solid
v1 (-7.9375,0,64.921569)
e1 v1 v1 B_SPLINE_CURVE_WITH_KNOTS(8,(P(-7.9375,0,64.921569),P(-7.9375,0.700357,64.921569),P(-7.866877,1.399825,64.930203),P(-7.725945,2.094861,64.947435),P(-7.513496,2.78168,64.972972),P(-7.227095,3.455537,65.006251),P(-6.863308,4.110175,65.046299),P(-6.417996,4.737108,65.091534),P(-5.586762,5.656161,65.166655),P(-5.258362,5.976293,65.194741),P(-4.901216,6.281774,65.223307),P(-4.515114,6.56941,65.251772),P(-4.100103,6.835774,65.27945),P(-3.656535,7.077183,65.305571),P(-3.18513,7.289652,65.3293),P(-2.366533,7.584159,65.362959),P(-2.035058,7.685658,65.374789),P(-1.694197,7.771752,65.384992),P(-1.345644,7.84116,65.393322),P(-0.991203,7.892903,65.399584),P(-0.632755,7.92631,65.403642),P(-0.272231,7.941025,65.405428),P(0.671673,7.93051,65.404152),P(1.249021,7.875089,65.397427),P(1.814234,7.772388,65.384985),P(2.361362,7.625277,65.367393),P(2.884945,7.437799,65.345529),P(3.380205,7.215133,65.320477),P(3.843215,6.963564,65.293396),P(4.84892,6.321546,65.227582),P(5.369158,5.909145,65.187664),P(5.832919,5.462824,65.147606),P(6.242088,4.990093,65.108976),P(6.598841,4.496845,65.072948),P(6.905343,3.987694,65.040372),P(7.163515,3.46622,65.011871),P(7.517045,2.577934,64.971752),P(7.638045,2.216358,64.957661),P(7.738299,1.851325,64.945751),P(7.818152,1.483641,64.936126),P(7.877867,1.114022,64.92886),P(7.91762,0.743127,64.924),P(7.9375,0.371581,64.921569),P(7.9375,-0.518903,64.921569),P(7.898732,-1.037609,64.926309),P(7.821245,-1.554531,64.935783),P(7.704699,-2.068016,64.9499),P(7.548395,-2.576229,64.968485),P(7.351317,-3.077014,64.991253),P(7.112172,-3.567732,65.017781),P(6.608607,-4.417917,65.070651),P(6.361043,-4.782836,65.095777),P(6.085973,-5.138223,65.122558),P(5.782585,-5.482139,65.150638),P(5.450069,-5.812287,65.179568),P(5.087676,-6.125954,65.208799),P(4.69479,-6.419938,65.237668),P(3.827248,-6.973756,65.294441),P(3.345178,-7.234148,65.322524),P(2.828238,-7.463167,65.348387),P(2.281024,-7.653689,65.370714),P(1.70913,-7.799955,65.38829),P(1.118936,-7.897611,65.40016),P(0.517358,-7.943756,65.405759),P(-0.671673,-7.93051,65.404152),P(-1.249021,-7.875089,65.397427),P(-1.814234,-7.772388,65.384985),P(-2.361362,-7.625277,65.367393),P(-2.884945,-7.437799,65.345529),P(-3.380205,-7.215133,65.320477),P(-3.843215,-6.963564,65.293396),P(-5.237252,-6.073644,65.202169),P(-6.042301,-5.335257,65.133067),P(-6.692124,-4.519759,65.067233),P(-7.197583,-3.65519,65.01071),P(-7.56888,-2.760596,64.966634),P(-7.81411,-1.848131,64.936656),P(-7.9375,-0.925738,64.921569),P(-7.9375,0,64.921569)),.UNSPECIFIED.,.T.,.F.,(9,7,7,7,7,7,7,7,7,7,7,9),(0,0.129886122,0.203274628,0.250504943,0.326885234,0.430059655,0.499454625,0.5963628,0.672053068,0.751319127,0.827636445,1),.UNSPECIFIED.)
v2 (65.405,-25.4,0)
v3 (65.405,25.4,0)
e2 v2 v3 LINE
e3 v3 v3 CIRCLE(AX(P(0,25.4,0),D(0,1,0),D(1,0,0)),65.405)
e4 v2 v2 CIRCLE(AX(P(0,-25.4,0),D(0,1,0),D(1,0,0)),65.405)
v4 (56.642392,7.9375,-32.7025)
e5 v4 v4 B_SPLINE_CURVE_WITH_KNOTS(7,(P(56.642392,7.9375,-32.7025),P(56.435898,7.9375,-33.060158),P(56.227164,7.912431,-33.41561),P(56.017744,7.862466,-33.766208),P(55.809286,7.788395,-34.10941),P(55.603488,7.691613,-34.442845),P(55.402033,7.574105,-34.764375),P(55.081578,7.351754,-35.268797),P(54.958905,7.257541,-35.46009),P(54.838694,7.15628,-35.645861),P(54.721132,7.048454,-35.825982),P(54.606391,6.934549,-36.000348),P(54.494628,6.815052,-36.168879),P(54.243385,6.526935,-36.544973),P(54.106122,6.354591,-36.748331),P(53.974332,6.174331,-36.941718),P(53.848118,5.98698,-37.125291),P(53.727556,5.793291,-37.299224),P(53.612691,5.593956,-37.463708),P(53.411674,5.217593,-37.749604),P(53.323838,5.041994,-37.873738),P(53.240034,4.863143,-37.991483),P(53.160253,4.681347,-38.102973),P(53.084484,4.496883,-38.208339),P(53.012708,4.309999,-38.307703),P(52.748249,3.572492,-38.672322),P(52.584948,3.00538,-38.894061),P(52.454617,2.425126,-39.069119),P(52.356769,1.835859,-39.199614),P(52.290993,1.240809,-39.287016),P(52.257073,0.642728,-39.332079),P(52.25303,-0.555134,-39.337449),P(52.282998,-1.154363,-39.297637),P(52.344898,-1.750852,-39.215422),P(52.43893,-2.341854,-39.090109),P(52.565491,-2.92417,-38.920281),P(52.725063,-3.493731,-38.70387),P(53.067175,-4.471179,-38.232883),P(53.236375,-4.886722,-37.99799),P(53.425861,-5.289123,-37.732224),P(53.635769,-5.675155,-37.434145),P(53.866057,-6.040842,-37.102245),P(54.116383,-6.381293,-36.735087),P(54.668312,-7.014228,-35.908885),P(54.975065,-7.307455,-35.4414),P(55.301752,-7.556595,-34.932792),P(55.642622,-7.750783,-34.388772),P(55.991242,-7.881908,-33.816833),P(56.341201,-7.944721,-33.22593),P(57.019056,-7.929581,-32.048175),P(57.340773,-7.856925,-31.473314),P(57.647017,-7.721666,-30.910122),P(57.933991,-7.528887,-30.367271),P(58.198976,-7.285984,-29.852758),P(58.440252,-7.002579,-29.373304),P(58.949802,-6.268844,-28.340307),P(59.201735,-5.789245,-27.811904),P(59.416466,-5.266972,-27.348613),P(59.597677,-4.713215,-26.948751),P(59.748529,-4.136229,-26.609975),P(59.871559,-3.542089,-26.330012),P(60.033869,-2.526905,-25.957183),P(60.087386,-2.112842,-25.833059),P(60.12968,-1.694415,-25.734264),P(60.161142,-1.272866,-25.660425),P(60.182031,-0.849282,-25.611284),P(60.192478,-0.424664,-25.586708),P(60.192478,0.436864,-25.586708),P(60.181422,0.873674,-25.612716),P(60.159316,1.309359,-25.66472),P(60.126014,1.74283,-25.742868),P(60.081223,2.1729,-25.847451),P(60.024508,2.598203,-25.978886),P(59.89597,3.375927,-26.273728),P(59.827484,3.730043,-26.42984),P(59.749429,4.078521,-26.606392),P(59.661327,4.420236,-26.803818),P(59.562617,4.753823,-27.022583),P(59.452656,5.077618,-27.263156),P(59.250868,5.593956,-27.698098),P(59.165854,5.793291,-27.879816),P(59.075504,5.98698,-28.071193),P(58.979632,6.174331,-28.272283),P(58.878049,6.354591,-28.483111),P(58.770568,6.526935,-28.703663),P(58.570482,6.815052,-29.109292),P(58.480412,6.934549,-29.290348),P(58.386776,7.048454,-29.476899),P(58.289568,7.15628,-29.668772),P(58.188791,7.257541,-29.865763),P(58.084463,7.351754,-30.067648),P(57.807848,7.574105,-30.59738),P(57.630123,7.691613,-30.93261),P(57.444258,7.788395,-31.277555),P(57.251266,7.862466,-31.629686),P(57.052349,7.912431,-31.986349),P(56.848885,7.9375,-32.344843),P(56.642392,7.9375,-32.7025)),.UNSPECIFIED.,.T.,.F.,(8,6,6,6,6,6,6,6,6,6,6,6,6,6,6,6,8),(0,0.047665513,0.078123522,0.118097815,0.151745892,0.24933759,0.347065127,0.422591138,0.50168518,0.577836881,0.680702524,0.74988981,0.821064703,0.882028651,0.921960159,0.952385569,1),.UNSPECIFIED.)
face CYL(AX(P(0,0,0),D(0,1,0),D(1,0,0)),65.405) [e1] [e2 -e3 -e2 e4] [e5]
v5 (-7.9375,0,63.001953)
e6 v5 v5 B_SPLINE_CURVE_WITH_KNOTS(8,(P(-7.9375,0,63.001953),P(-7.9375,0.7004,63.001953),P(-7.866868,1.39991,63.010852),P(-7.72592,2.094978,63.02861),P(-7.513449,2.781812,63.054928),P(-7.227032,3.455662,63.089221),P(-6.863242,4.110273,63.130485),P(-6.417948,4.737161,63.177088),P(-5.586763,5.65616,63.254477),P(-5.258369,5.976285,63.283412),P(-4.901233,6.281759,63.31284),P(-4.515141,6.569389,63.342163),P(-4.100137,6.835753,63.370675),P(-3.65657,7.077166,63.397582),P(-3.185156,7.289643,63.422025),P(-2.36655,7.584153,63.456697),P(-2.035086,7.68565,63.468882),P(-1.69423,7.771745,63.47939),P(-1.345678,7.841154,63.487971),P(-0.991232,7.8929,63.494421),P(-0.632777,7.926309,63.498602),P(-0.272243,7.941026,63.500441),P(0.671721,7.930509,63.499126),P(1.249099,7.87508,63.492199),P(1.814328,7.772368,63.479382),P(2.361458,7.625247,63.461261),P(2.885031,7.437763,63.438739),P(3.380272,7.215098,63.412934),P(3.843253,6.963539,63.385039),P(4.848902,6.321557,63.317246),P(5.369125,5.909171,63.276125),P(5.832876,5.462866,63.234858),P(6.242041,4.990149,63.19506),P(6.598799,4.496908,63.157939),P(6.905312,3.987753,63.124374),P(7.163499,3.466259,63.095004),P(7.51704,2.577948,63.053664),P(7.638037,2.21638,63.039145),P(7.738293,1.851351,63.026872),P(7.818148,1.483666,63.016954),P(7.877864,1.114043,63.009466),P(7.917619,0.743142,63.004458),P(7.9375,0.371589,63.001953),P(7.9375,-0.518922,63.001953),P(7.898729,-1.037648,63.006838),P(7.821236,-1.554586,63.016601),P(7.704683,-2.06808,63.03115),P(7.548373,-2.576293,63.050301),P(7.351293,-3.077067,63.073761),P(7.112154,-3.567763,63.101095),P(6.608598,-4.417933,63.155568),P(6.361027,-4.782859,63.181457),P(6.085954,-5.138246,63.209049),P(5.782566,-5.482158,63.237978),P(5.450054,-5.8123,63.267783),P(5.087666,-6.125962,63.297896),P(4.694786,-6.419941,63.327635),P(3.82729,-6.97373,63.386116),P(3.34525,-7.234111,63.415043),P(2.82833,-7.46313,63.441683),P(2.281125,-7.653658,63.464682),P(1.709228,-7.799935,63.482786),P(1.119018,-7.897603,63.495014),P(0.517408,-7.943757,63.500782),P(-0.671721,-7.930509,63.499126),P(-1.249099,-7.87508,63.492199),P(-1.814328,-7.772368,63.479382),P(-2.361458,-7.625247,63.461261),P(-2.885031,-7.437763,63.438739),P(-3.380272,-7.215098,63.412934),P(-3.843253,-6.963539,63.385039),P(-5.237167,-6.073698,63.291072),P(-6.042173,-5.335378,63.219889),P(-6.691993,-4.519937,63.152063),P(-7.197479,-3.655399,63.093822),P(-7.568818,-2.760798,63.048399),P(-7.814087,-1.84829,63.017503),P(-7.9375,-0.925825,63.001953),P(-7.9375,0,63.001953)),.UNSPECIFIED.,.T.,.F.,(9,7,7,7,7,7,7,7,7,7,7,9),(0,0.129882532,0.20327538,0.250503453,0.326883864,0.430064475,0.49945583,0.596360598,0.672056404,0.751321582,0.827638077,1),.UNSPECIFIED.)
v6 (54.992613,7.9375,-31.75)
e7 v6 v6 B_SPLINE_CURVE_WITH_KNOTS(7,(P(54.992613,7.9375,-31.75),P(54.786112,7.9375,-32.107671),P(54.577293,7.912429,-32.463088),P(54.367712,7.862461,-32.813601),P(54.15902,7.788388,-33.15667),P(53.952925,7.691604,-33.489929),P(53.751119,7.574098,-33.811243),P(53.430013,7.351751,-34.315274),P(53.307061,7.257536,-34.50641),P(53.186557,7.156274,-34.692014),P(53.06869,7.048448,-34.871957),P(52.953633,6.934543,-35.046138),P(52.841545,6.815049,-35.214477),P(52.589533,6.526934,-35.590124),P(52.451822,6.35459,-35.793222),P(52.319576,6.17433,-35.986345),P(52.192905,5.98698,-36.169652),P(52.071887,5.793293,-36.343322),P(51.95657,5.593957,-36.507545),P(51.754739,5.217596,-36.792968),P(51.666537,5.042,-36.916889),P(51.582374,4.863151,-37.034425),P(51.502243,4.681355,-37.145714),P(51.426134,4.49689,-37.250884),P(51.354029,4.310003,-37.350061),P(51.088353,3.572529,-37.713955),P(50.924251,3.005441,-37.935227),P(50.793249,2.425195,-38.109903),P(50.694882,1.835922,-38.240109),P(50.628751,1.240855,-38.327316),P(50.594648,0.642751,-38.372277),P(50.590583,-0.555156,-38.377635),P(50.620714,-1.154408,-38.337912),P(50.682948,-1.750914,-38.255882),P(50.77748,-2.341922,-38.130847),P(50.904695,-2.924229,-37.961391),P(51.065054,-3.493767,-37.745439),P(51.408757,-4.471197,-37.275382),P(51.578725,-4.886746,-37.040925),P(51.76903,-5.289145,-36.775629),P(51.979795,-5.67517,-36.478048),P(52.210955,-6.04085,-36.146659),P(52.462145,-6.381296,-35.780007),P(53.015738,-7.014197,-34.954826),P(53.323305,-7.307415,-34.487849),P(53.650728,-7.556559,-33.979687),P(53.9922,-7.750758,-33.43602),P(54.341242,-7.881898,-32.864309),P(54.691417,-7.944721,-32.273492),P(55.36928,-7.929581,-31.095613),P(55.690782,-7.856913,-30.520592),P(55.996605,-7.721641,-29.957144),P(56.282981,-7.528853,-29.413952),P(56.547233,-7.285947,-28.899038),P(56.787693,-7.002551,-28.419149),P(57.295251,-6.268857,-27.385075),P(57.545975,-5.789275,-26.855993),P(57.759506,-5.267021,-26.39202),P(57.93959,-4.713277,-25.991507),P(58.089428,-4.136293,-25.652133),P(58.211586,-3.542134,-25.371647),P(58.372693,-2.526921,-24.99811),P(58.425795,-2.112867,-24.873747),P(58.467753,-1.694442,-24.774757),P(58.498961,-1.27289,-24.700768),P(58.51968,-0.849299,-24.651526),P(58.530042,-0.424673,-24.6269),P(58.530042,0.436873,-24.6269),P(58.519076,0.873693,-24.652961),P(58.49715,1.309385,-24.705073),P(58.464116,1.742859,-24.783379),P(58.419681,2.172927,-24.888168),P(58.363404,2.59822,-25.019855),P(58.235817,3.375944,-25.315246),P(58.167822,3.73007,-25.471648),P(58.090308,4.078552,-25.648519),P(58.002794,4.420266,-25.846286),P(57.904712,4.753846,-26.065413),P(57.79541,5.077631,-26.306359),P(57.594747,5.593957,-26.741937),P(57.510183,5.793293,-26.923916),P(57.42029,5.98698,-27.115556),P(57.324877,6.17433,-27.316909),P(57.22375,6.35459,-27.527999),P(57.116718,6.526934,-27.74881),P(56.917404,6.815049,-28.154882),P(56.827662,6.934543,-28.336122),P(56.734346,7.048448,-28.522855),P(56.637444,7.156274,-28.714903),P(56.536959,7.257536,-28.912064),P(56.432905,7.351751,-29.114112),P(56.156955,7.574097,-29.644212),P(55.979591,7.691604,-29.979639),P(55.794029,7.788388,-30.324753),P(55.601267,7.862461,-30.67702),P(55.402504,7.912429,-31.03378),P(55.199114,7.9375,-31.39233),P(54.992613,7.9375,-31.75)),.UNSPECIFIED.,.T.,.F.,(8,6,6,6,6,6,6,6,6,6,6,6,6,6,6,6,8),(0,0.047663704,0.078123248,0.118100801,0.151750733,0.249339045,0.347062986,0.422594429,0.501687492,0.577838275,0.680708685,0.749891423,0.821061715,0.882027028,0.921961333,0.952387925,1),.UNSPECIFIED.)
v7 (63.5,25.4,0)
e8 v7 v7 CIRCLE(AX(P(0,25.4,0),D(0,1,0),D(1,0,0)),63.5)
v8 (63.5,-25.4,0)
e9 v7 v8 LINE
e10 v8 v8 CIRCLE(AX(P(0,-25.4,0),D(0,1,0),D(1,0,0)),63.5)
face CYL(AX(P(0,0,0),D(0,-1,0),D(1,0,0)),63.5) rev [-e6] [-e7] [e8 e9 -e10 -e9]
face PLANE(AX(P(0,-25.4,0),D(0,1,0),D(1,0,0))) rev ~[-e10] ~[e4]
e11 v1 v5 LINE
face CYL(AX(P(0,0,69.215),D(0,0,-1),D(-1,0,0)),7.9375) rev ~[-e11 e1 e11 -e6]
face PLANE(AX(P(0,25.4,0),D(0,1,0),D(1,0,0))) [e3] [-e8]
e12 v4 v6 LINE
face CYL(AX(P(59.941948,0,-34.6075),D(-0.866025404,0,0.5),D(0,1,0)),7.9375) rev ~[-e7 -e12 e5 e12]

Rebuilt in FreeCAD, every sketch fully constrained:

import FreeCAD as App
import Part
import Sketcher
from FreeCAD import Vector
Q = App.Units.Quantity

doc = App.newDocument("Part")
body = doc.addObject("PartDesign::Body", "Body")

sketch1 = body.newObject("Sketcher::SketchObject", "Sketch")
sketch1.AttachmentSupport = (doc.getObject("XZ_Plane"), [""])
sketch1.MapMode = "FlatFace"
sketch1.addGeometry([
    Part.Circle(Vector(0, 0, 0), Vector(0, 0, 1), 65),
    Part.Circle(Vector(0, 0, 0), Vector(0, 0, 1), 64),
], False)
sketch1.addConstraint([
    Sketcher.Constraint("Coincident", 0, 3, -1, 1),
    Sketcher.Constraint("Coincident", 1, 3, -1, 1),
    Sketcher.Constraint("Diameter", 1, Q("5 in")),
    Sketcher.Constraint("Diameter", 0, Q("5.15 in")),
])
pad1 = body.newObject("PartDesign::Pad", "Pad")
pad1.Profile = sketch1
pad1.Length = Q("2 in")
pad1.Midplane = True

sketch2 = body.newObject("Sketcher::SketchObject", "Sketch001")
sketch2.Placement = App.Placement(Vector(56.642392, 0, -32.7025), App.Rotation(Vector(0, -1, 0), Vector(-0.5, 0, -0.866025404), Vector(0.866025404, 0, -0.5), "ZXY"))
sketch2.addGeometry(Part.Circle(Vector(0, 0, 0), Vector(0, 0, 1), 8), False)
sketch2.addConstraint([
    Sketcher.Constraint("Coincident", 0, 3, -1, 1),
    Sketcher.Constraint("Diameter", 0, Q("0.625 in")),
])
doc.recompute()
hole = body.newObject("PartDesign::Hole", "Hole")
hole.Profile = sketch2
hole.ThreadType = "None"
hole.Diameter = Q("0.625 in")
hole.DepthType = "Dimension"
hole.Depth = Q("0.15 in")
hole.DrillPoint = "Flat"

sketch3 = body.newObject("Sketcher::SketchObject", "Sketch002")
sketch3.AttachmentSupport = (doc.getObject("XY_Plane"), [""])
sketch3.MapMode = "FlatFace"
sketch3.AttachmentOffset = App.Placement(Vector(0, 0, 2.575 * 25.4), App.Rotation())
sketch3.addGeometry(Part.Circle(Vector(0, 0, 0), Vector(0, 0, 1), 8), False)
sketch3.addConstraint([
    Sketcher.Constraint("Coincident", 0, 3, -1, 1),
    Sketcher.Constraint("Diameter", 0, Q("0.625 in")),
])
doc.recompute()
hole2 = body.newObject("PartDesign::Hole", "Hole001")
hole2.Profile = sketch3
hole2.ThreadType = "None"
hole2.Diameter = Q("0.625 in")
hole2.DepthType = "Dimension"
hole2.Depth = Q("0.15 in")
hole2.DrillPoint = "Flat"

doc.recompute()
